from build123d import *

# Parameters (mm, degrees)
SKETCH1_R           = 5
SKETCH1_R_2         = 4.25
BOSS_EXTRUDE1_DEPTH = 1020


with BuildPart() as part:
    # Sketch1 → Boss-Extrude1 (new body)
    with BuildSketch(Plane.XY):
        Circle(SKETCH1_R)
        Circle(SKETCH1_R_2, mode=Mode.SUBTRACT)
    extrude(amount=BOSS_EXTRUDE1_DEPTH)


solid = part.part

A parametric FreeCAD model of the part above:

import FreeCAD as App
import Part
import Sketcher
from FreeCAD import Vector

doc = App.newDocument("Part")
body = doc.addObject("PartDesign::Body", "Body")

sketch1 = body.newObject("Sketcher::SketchObject", "Sketch")
sketch1.AttachmentSupport = (doc.getObject("XY_Plane"), [""])
sketch1.MapMode = "FlatFace"
sketch1.addGeometry(Part.Circle(Vector(0, 0, 0), Vector(0, 0, 1), 5), False)
sketch1.addGeometry(Part.Circle(Vector(0, 0, 0), Vector(0, 0, 1), 4.2), False)
sketch1.addConstraint(Sketcher.Constraint("Coincident", 0, 3, -1, 1))
sketch1.addConstraint(Sketcher.Constraint("Coincident", 1, 3, -1, 1))
sketch1.addConstraint(Sketcher.Constraint("Diameter", 0, 10.0))
sketch1.addConstraint(Sketcher.Constraint("Diameter", 1, 8.5))
pad1 = body.newObject("PartDesign::Pad", "Pad")
pad1.Profile = sketch1
pad1.Length = 1020

doc.recompute()
